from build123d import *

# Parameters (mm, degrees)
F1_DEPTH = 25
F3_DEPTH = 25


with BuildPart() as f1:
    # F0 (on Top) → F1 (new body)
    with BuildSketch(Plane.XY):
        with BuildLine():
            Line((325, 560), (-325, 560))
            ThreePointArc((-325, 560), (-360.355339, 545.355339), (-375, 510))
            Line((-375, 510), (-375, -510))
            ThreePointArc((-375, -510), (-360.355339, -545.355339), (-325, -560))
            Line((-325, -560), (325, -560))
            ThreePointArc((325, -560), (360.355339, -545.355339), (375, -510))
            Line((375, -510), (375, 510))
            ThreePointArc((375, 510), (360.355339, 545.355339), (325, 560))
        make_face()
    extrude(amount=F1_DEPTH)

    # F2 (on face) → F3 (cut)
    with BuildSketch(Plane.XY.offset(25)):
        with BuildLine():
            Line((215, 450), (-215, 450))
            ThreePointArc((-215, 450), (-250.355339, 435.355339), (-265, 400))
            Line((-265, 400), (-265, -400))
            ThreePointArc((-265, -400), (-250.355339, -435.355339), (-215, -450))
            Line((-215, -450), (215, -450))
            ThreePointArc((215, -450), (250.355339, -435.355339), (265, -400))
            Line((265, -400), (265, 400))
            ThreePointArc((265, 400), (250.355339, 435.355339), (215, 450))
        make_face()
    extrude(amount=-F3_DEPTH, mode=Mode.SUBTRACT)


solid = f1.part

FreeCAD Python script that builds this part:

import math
import FreeCAD as App
import Part
import Sketcher

doc = App.newDocument("Part")
params = doc.addObject("Spreadsheet::Sheet", "Params")
for row, (alias, value) in enumerate([
    ("sketch1_radius", "50 mm"),
    ("sketch1_width", "650 mm"),
    ("sketch1_height", "1020 mm"),
    ("pad1_length", "25 mm"),
    ("sketch2_radius", "50 mm"),
    ("sketch2_width", "430 mm"),
    ("sketch2_height", "800 mm"),
    ("pocket1_length", "25 mm"),
], start=1):
    params.set(f"A{row}", alias)
    params.set(f"B{row}", "=" + value)
    params.setAlias(f"B{row}", alias)

body = doc.addObject("PartDesign::Body", "Body")

# Sketch on XY plane
sketch1 = body.newObject("Sketcher::SketchObject", "Sketch")
sketch1.AttachmentSupport = (doc.getObject("XY_Plane"), [""])
sketch1.MapMode = "FlatFace"
sketch1.addGeometry([
    Part.LineSegment(App.Vector(325, 560, 0), App.Vector(-325, 560, 0)),  # 0
    Part.ArcOfCircle(Part.Circle(App.Vector(-325, 510, 0), App.Vector(0, 0, 1), 50), math.radians(90), math.radians(180)),  # 1
    Part.LineSegment(App.Vector(-375, 510, 0), App.Vector(-375, -510, 0)),  # 2
    Part.ArcOfCircle(Part.Circle(App.Vector(-325, -510, 0), App.Vector(0, 0, 1), 50), math.radians(-180), math.radians(-90)),  # 3
    Part.LineSegment(App.Vector(-325, -560, 0), App.Vector(325, -560, 0)),  # 4
    Part.ArcOfCircle(Part.Circle(App.Vector(325, -510, 0), App.Vector(0, 0, 1), 50), math.radians(-90), math.radians(0)),  # 5
    Part.LineSegment(App.Vector(375, -510, 0), App.Vector(375, 510, 0)),  # 6
    Part.ArcOfCircle(Part.Circle(App.Vector(325, 510, 0), App.Vector(0, 0, 1), 50), math.radians(0), math.radians(90)),  # 7
], False)
sketch1.addConstraint([
    Sketcher.Constraint("Tangent", 0, 2, 1, 1),
    Sketcher.Constraint("Tangent", 1, 2, 2, 1),
    Sketcher.Constraint("Tangent", 2, 2, 3, 1),
    Sketcher.Constraint("Tangent", 3, 2, 4, 1),
    Sketcher.Constraint("Tangent", 4, 2, 5, 1),
    Sketcher.Constraint("Tangent", 5, 2, 6, 1),
    Sketcher.Constraint("Tangent", 6, 2, 7, 1),
    Sketcher.Constraint("Tangent", 7, 2, 0, 1),
    Sketcher.Constraint("Horizontal", 0),
    Sketcher.Constraint("Vertical", 2),
    Sketcher.Constraint("Horizontal", 4),
    Sketcher.Constraint("Vertical", 6),
    Sketcher.Constraint("Equal", 1, 3),
    Sketcher.Constraint("Equal", 3, 5),
    Sketcher.Constraint("Equal", 5, 7),
    Sketcher.Constraint("Symmetric", 1, 3, 5, 3, -1, 1),
    Sketcher.Constraint("Radius", 1, 50.0),
    Sketcher.Constraint("DistanceX", 0, 2, 0, 1, 650.0),
    Sketcher.Constraint("DistanceY", 2, 2, 2, 1, 1020.0),
])
sketch1.setExpression("Constraints[16]", "Params.sketch1_radius")
sketch1.setExpression("Constraints[17]", "Params.sketch1_width")
sketch1.setExpression("Constraints[18]", "Params.sketch1_height")
pad1 = body.newObject("PartDesign::Pad", "Pad")
pad1.Profile = sketch1
pad1.setExpression("Length", "Params.pad1_length")

# Sketch on XY plane
sketch2 = body.newObject("Sketcher::SketchObject", "Sketch001")
sketch2.AttachmentSupport = (doc.getObject("XY_Plane"), [""])
sketch2.MapMode = "FlatFace"
sketch2.AttachmentOffset = App.Placement(App.Vector(0, 0, 25), App.Rotation())
sketch2.addGeometry([
    Part.LineSegment(App.Vector(215, 450, 0), App.Vector(-215, 450, 0)),  # 0
    Part.ArcOfCircle(Part.Circle(App.Vector(-215, 400, 0), App.Vector(0, 0, 1), 50), math.radians(90), math.radians(180)),  # 1
    Part.LineSegment(App.Vector(-265, 400, 0), App.Vector(-265, -400, 0)),  # 2
    Part.ArcOfCircle(Part.Circle(App.Vector(-215, -400, 0), App.Vector(0, 0, 1), 50), math.radians(-180), math.radians(-90)),  # 3
    Part.LineSegment(App.Vector(-215, -450, 0), App.Vector(215, -450, 0)),  # 4
    Part.ArcOfCircle(Part.Circle(App.Vector(215, -400, 0), App.Vector(0, 0, 1), 50), math.radians(-90), math.radians(0)),  # 5
    Part.LineSegment(App.Vector(265, -400, 0), App.Vector(265, 400, 0)),  # 6
    Part.ArcOfCircle(Part.Circle(App.Vector(215, 400, 0), App.Vector(0, 0, 1), 50), math.radians(0), math.radians(90)),  # 7
], False)
sketch2.addConstraint([
    Sketcher.Constraint("Tangent", 0, 2, 1, 1),
    Sketcher.Constraint("Tangent", 1, 2, 2, 1),
    Sketcher.Constraint("Tangent", 2, 2, 3, 1),
    Sketcher.Constraint("Tangent", 3, 2, 4, 1),
    Sketcher.Constraint("Tangent", 4, 2, 5, 1),
    Sketcher.Constraint("Tangent", 5, 2, 6, 1),
    Sketcher.Constraint("Tangent", 6, 2, 7, 1),
    Sketcher.Constraint("Tangent", 7, 2, 0, 1),
    Sketcher.Constraint("Horizontal", 0),
    Sketcher.Constraint("Vertical", 2),
    Sketcher.Constraint("Horizontal", 4),
    Sketcher.Constraint("Vertical", 6),
    Sketcher.Constraint("Equal", 1, 3),
    Sketcher.Constraint("Equal", 3, 5),
    Sketcher.Constraint("Equal", 5, 7),
    Sketcher.Constraint("Symmetric", 1, 3, 5, 3, -1, 1),
    Sketcher.Constraint("Radius", 1, 50.0),
    Sketcher.Constraint("DistanceX", 0, 2, 0, 1, 430.0),
    Sketcher.Constraint("DistanceY", 2, 2, 2, 1, 800.0),
])
sketch2.setExpression("Constraints[16]", "Params.sketch2_radius")
sketch2.setExpression("Constraints[17]", "Params.sketch2_width")
sketch2.setExpression("Constraints[18]", "Params.sketch2_height")
pocket1 = body.newObject("PartDesign::Pocket", "Pocket")
pocket1.Profile = sketch2
pocket1.setExpression("Length", "Params.pocket1_length")

doc.recompute()
